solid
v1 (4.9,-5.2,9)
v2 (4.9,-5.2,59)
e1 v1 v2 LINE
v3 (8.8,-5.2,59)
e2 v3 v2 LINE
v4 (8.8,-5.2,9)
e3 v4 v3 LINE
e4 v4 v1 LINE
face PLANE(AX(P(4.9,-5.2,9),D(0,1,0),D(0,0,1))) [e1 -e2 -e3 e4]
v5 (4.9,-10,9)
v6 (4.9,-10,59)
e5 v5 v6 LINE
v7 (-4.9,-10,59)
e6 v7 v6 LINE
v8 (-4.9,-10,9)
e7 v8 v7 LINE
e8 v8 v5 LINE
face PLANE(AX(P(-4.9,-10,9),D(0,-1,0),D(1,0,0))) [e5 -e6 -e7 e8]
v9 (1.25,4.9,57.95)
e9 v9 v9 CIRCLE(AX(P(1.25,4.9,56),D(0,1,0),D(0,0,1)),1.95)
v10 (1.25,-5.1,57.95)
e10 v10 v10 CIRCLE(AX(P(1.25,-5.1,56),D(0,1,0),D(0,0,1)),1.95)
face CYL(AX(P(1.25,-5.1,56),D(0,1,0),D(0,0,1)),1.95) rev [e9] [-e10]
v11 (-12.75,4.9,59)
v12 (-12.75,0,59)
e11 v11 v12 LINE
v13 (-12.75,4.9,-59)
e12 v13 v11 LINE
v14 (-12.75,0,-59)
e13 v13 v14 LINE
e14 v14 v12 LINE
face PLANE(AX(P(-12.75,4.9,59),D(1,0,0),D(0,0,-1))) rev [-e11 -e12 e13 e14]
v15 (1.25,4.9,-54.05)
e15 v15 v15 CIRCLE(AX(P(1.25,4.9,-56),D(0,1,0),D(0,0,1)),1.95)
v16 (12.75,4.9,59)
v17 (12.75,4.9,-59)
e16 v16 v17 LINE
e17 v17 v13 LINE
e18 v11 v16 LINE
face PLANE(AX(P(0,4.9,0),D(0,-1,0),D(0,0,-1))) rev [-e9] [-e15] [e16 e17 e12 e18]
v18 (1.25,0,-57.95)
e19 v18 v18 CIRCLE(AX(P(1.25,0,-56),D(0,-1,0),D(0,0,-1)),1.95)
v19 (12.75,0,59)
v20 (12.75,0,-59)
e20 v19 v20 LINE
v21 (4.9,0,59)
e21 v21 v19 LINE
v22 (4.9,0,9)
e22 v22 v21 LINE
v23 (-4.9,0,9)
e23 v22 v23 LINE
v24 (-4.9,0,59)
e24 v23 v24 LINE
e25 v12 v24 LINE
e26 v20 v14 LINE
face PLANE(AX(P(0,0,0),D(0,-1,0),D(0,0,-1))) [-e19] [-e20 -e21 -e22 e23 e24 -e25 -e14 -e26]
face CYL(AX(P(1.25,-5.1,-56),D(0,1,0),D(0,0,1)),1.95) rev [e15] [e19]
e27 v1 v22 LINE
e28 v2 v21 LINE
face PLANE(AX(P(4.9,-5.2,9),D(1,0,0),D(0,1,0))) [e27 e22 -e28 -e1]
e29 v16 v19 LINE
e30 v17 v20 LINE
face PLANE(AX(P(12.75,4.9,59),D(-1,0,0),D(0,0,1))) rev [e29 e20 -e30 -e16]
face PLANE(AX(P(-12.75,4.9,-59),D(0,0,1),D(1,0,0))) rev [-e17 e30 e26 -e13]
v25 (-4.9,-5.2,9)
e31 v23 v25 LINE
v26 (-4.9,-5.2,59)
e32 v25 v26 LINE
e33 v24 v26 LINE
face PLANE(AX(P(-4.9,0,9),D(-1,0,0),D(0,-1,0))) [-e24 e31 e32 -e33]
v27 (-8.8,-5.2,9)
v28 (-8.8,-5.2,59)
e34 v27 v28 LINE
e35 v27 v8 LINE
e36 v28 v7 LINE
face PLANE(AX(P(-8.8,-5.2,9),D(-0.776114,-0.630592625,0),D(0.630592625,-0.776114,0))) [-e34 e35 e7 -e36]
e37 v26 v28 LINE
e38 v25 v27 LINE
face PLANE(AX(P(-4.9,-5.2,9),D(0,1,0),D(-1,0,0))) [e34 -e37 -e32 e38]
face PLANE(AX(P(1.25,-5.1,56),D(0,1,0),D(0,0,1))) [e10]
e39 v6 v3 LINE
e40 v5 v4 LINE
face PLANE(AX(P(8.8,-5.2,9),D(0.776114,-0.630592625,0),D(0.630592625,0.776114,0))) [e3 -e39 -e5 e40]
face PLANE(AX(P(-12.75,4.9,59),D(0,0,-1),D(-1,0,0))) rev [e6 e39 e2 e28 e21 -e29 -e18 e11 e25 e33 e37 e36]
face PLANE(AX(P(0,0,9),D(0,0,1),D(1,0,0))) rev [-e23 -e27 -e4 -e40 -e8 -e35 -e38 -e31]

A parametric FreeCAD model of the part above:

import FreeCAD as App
import Part
import Sketcher
from FreeCAD import Vector

doc = App.newDocument("Part")
body = doc.addObject("PartDesign::Body", "Body")

sketch1 = doc.addObject("Sketcher::SketchObject", "Sketch")
body.addObject(sketch1)
sketch1.AttachmentSupport = (doc.XZ_Plane, [""])
sketch1.MapMode = "FlatFace"
sketch1.addGeometry(Part.LineSegment(Vector(-13, -59, 0), Vector(-13, 59, 0)), False)
sketch1.addGeometry(Part.LineSegment(Vector(-13, 59, 0), Vector(13, 59, 0)), False)
sketch1.addGeometry(Part.LineSegment(Vector(13, 59, 0), Vector(13, -59, 0)), False)
sketch1.addGeometry(Part.LineSegment(Vector(13, -59, 0), Vector(-13, -59, 0)), False)
sketch1.addConstraint(Sketcher.Constraint("Coincident", 0, 2, 1, 1))
sketch1.addConstraint(Sketcher.Constraint("Coincident", 1, 2, 2, 1))
sketch1.addConstraint(Sketcher.Constraint("Coincident", 2, 2, 3, 1))
sketch1.addConstraint(Sketcher.Constraint("Coincident", 3, 2, 0, 1))
sketch1.addConstraint(Sketcher.Constraint("Vertical", 0))
sketch1.addConstraint(Sketcher.Constraint("Horizontal", 1))
sketch1.addConstraint(Sketcher.Constraint("Vertical", 2))
sketch1.addConstraint(Sketcher.Constraint("Horizontal", 3))
sketch1.addConstraint(Sketcher.Constraint("Symmetric", 0, 2, 2, 2, -1, 1))
sketch1.addConstraint(Sketcher.Constraint("DistanceY", 0, 1, 0, 2, 118.0))
sketch1.addConstraint(Sketcher.Constraint("DistanceX", 1, 1, 1, 2, 25.5))
pad1 = doc.addObject("PartDesign::Pad", "Pad")
body.addObject(pad1)
pad1.Profile = sketch1
pad1.Length = 4.9
pad1.Reversed = True

sketch2 = doc.addObject("Sketcher::SketchObject", "Sketch001")
body.addObject(sketch2)
sketch2.AttachmentSupport = (doc.XY_Plane, [""])
sketch2.MapMode = "FlatFace"
sketch2.AttachmentOffset = App.Placement(Vector(0, 0, 59), App.Rotation())
sketch2.addGeometry(Part.LineSegment(Vector(-4.9, 0, 0), Vector(-4.9, -5.2, 0)), False)
sketch2.addGeometry(Part.LineSegment(Vector(-4.9, -5.2, 0), Vector(-8.8, -5.2, 0)), False)
sketch2.addGeometry(Part.LineSegment(Vector(-8.8, -5.2, 0), Vector(-4.9, -10, 0)), False)
sketch2.addGeometry(Part.LineSegment(Vector(-4.9, -10, 0), Vector(4.9, -10, 0)), False)
sketch2.addGeometry(Part.LineSegment(Vector(4.9, -10, 0), Vector(8.8, -5.2, 0)), False)
sketch2.addGeometry(Part.LineSegment(Vector(8.8, -5.2, 0), Vector(4.9, -5.2, 0)), False)
sketch2.addGeometry(Part.LineSegment(Vector(4.9, -5.2, 0), Vector(4.9, 0, 0)), False)
sketch2.addGeometry(Part.LineSegment(Vector(4.9, 0, 0), Vector(-4.9, 0, 0)), False)
sketch2.addConstraint(Sketcher.Constraint("Coincident", 0, 2, 1, 1))
sketch2.addConstraint(Sketcher.Constraint("Coincident", 1, 2, 2, 1))
sketch2.addConstraint(Sketcher.Constraint("Coincident", 2, 2, 3, 1))
sketch2.addConstraint(Sketcher.Constraint("Coincident", 3, 2, 4, 1))
sketch2.addConstraint(Sketcher.Constraint("Coincident", 4, 2, 5, 1))
sketch2.addConstraint(Sketcher.Constraint("Coincident", 5, 2, 6, 1))
sketch2.addConstraint(Sketcher.Constraint("Coincident", 6, 2, 7, 1))
sketch2.addConstraint(Sketcher.Constraint("Coincident", 7, 2, 0, 1))
sketch2.addConstraint(Sketcher.Constraint("Vertical", 0))
sketch2.addConstraint(Sketcher.Constraint("Horizontal", 1))
sketch2.addConstraint(Sketcher.Constraint("Horizontal", 3))
sketch2.addConstraint(Sketcher.Constraint("Horizontal", 5))
sketch2.addConstraint(Sketcher.Constraint("Vertical", 6))
sketch2.addConstraint(Sketcher.Constraint("Horizontal", 7))
sketch2.addConstraint(Sketcher.Constraint("Symmetric", 6, 2, 7, 2, -1, 1))
sketch2.addConstraint(Sketcher.Constraint("Symmetric", 1, 2, 4, 2, -2))
sketch2.addConstraint(Sketcher.Constraint("Vertical", 0, 2, 2, 2))
sketch2.addConstraint(Sketcher.Constraint("Vertical", 3, 2, 5, 2))
sketch2.addConstraint(Sketcher.Constraint("DistanceX", 1, 2, 1, 1, 3.9))
sketch2.addConstraint(Sketcher.Constraint("DistanceX", 3, 1, 3, 2, 9.8))
sketch2.addConstraint(Sketcher.Constraint("DistanceY", 0, 2, 0, 1, 5.2))
sketch2.addConstraint(Sketcher.Constraint("DistanceY", 2, 2, -1, 1, 10.0))
pad2 = doc.addObject("PartDesign::Pad", "Pad001")
body.addObject(pad2)
pad2.Profile = sketch2
pad2.Length = 50
pad2.Reversed = True

sketch3 = doc.addObject("Sketcher::SketchObject", "Sketch002")
body.addObject(sketch3)
sketch3.AttachmentSupport = (doc.XZ_Plane, [""])
sketch3.MapMode = "FlatFace"
sketch3.AttachmentOffset = App.Placement(Vector(0, 0, -4.9), App.Rotation())
sketch3.addGeometry(Part.Circle(Vector(1.2, -56, 0), Vector(0, 0, 1), 1.9), False)
sketch3.addGeometry(Part.Circle(Vector(1.2, 56, 0), Vector(0, 0, 1), 1.9), False)
sketch3.addConstraint(Sketcher.Constraint("Equal", 0, 1))
sketch3.addConstraint(Sketcher.Constraint("Symmetric", 0, 3, 1, 3, -1))
sketch3.addConstraint(Sketcher.Constraint("Diameter", 0, 3.9))
sketch3.addConstraint(Sketcher.Constraint("DistanceY", 0, 3, -1, 1, 56.0))
sketch3.addConstraint(Sketcher.Constraint("DistanceX", -1, 1, 0, 3, 1.25))
pocket1 = doc.addObject("PartDesign::Pocket", "Pocket")
body.addObject(pocket1)
pocket1.Profile = sketch3
pocket1.Length = 10
pocket1.Reversed = True

doc.recompute()
